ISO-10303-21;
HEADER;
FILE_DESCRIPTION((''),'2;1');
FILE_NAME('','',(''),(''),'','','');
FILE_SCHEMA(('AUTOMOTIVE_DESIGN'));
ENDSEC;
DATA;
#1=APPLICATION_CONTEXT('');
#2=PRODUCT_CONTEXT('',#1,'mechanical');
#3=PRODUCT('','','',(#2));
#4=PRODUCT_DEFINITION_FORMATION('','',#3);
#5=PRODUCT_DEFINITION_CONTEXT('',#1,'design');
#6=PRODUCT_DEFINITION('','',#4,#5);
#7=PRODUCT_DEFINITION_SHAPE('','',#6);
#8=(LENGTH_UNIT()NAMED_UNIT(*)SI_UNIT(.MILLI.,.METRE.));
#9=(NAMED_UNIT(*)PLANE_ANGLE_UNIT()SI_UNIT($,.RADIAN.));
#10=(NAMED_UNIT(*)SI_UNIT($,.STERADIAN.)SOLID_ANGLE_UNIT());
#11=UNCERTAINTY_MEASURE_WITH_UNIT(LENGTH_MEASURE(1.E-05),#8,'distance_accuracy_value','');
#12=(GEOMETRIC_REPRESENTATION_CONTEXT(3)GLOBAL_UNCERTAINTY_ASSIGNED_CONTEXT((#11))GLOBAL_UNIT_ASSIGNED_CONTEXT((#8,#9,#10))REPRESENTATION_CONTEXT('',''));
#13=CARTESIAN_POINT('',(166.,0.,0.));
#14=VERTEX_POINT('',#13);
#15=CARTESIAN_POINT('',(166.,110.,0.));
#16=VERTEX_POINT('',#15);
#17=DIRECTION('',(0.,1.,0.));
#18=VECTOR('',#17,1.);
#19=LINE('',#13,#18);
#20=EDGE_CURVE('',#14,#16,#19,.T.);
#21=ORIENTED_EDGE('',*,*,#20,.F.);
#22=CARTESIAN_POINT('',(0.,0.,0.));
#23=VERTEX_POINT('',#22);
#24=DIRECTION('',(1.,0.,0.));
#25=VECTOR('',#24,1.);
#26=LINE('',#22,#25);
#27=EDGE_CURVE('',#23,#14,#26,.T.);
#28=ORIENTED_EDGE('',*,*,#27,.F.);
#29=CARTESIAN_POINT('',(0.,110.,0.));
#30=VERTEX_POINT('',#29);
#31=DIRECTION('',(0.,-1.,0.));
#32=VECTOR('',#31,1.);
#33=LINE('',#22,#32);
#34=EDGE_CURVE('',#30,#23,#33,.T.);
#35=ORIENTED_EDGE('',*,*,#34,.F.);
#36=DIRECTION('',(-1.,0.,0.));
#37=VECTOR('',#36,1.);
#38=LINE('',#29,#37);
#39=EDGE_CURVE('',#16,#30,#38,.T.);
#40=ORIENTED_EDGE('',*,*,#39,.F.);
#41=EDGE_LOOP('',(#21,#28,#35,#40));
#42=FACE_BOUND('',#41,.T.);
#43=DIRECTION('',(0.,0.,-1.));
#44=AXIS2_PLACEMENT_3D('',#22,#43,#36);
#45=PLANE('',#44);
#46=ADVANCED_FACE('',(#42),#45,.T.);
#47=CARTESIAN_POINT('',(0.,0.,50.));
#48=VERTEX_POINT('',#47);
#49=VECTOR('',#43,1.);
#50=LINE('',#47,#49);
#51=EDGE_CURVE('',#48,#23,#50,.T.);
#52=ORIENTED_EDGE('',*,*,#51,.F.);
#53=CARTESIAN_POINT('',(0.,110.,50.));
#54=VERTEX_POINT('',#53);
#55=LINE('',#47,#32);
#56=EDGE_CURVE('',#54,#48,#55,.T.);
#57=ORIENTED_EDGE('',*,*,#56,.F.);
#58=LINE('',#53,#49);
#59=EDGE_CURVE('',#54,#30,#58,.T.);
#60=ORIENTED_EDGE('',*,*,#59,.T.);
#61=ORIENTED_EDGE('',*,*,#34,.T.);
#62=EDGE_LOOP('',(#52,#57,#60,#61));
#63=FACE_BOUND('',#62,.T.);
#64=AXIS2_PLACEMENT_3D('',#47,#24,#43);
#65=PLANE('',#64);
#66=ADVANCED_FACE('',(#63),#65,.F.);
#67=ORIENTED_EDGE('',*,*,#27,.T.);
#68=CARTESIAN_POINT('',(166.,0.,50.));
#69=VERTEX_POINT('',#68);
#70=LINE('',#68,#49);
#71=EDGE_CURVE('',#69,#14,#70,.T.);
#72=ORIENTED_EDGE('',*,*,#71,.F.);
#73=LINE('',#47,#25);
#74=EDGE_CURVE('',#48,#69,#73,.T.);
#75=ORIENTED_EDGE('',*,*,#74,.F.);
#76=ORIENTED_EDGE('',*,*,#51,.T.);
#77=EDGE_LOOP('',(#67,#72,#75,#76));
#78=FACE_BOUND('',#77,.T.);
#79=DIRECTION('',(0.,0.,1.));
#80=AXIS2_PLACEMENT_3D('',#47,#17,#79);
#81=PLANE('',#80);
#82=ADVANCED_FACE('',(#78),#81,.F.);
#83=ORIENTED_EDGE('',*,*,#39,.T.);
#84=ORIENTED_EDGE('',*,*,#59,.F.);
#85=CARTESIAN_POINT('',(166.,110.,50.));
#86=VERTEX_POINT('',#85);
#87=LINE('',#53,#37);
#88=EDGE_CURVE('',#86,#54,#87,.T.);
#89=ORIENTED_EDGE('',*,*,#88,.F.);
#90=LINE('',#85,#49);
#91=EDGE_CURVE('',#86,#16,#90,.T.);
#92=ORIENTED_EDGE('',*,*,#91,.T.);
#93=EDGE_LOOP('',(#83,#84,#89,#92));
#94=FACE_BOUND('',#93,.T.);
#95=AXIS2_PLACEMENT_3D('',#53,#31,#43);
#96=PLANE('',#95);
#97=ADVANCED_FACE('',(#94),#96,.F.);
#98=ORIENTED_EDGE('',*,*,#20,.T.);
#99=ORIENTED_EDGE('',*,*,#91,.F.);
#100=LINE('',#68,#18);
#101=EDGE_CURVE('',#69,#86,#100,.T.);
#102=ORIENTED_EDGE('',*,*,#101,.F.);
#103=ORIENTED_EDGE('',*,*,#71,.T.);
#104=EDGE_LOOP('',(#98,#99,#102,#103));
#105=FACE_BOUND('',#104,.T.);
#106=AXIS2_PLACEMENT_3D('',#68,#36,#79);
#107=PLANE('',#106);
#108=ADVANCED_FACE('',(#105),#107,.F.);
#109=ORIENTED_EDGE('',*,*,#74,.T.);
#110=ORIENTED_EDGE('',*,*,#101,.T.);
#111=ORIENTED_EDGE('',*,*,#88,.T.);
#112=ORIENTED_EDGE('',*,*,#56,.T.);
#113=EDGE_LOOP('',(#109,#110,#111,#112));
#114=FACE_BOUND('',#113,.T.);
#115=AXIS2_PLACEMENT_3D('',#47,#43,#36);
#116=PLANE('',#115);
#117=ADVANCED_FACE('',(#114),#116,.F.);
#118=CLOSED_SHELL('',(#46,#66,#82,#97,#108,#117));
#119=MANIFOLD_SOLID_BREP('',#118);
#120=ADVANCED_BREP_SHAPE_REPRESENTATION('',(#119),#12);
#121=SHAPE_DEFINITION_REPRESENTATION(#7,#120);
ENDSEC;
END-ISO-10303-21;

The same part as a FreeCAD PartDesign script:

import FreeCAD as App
import Part
import Sketcher

doc = App.newDocument("Part")
body = doc.addObject("PartDesign::Body", "Body")

# Sketch on XY plane
sketch1 = body.newObject("Sketcher::SketchObject", "Sketch")
sketch1.AttachmentSupport = (doc.getObject("XY_Plane"), [""])
sketch1.MapMode = "FlatFace"
sketch1.addGeometry([
    Part.LineSegment(App.Vector(0, 110, 0), App.Vector(0, 0, 0)),
    Part.LineSegment(App.Vector(0, 0, 0), App.Vector(166, 0, 0)),
    Part.LineSegment(App.Vector(166, 0, 0), App.Vector(166, 110, 0)),
    Part.LineSegment(App.Vector(166, 110, 0), App.Vector(0, 110, 0)),
], False)
sketch1.addConstraint([
    Sketcher.Constraint("Coincident", 0, 2, 1, 1),
    Sketcher.Constraint("Coincident", 1, 2, 2, 1),
    Sketcher.Constraint("Coincident", 2, 2, 3, 1),
    Sketcher.Constraint("Coincident", 3, 2, 0, 1),
    Sketcher.Constraint("Vertical", 0),
    Sketcher.Constraint("Horizontal", 1),
    Sketcher.Constraint("Vertical", 2),
    Sketcher.Constraint("Horizontal", 3),
    Sketcher.Constraint("Coincident", 0, 2, -1, 1),
    Sketcher.Constraint("DistanceX", 1, 1, 1, 2, 166.0),
    Sketcher.Constraint("DistanceY", 0, 2, 0, 1, 110.0),
])
pad1 = body.newObject("PartDesign::Pad", "Pad")
pad1.Profile = sketch1
pad1.Length = 50

doc.recompute()
